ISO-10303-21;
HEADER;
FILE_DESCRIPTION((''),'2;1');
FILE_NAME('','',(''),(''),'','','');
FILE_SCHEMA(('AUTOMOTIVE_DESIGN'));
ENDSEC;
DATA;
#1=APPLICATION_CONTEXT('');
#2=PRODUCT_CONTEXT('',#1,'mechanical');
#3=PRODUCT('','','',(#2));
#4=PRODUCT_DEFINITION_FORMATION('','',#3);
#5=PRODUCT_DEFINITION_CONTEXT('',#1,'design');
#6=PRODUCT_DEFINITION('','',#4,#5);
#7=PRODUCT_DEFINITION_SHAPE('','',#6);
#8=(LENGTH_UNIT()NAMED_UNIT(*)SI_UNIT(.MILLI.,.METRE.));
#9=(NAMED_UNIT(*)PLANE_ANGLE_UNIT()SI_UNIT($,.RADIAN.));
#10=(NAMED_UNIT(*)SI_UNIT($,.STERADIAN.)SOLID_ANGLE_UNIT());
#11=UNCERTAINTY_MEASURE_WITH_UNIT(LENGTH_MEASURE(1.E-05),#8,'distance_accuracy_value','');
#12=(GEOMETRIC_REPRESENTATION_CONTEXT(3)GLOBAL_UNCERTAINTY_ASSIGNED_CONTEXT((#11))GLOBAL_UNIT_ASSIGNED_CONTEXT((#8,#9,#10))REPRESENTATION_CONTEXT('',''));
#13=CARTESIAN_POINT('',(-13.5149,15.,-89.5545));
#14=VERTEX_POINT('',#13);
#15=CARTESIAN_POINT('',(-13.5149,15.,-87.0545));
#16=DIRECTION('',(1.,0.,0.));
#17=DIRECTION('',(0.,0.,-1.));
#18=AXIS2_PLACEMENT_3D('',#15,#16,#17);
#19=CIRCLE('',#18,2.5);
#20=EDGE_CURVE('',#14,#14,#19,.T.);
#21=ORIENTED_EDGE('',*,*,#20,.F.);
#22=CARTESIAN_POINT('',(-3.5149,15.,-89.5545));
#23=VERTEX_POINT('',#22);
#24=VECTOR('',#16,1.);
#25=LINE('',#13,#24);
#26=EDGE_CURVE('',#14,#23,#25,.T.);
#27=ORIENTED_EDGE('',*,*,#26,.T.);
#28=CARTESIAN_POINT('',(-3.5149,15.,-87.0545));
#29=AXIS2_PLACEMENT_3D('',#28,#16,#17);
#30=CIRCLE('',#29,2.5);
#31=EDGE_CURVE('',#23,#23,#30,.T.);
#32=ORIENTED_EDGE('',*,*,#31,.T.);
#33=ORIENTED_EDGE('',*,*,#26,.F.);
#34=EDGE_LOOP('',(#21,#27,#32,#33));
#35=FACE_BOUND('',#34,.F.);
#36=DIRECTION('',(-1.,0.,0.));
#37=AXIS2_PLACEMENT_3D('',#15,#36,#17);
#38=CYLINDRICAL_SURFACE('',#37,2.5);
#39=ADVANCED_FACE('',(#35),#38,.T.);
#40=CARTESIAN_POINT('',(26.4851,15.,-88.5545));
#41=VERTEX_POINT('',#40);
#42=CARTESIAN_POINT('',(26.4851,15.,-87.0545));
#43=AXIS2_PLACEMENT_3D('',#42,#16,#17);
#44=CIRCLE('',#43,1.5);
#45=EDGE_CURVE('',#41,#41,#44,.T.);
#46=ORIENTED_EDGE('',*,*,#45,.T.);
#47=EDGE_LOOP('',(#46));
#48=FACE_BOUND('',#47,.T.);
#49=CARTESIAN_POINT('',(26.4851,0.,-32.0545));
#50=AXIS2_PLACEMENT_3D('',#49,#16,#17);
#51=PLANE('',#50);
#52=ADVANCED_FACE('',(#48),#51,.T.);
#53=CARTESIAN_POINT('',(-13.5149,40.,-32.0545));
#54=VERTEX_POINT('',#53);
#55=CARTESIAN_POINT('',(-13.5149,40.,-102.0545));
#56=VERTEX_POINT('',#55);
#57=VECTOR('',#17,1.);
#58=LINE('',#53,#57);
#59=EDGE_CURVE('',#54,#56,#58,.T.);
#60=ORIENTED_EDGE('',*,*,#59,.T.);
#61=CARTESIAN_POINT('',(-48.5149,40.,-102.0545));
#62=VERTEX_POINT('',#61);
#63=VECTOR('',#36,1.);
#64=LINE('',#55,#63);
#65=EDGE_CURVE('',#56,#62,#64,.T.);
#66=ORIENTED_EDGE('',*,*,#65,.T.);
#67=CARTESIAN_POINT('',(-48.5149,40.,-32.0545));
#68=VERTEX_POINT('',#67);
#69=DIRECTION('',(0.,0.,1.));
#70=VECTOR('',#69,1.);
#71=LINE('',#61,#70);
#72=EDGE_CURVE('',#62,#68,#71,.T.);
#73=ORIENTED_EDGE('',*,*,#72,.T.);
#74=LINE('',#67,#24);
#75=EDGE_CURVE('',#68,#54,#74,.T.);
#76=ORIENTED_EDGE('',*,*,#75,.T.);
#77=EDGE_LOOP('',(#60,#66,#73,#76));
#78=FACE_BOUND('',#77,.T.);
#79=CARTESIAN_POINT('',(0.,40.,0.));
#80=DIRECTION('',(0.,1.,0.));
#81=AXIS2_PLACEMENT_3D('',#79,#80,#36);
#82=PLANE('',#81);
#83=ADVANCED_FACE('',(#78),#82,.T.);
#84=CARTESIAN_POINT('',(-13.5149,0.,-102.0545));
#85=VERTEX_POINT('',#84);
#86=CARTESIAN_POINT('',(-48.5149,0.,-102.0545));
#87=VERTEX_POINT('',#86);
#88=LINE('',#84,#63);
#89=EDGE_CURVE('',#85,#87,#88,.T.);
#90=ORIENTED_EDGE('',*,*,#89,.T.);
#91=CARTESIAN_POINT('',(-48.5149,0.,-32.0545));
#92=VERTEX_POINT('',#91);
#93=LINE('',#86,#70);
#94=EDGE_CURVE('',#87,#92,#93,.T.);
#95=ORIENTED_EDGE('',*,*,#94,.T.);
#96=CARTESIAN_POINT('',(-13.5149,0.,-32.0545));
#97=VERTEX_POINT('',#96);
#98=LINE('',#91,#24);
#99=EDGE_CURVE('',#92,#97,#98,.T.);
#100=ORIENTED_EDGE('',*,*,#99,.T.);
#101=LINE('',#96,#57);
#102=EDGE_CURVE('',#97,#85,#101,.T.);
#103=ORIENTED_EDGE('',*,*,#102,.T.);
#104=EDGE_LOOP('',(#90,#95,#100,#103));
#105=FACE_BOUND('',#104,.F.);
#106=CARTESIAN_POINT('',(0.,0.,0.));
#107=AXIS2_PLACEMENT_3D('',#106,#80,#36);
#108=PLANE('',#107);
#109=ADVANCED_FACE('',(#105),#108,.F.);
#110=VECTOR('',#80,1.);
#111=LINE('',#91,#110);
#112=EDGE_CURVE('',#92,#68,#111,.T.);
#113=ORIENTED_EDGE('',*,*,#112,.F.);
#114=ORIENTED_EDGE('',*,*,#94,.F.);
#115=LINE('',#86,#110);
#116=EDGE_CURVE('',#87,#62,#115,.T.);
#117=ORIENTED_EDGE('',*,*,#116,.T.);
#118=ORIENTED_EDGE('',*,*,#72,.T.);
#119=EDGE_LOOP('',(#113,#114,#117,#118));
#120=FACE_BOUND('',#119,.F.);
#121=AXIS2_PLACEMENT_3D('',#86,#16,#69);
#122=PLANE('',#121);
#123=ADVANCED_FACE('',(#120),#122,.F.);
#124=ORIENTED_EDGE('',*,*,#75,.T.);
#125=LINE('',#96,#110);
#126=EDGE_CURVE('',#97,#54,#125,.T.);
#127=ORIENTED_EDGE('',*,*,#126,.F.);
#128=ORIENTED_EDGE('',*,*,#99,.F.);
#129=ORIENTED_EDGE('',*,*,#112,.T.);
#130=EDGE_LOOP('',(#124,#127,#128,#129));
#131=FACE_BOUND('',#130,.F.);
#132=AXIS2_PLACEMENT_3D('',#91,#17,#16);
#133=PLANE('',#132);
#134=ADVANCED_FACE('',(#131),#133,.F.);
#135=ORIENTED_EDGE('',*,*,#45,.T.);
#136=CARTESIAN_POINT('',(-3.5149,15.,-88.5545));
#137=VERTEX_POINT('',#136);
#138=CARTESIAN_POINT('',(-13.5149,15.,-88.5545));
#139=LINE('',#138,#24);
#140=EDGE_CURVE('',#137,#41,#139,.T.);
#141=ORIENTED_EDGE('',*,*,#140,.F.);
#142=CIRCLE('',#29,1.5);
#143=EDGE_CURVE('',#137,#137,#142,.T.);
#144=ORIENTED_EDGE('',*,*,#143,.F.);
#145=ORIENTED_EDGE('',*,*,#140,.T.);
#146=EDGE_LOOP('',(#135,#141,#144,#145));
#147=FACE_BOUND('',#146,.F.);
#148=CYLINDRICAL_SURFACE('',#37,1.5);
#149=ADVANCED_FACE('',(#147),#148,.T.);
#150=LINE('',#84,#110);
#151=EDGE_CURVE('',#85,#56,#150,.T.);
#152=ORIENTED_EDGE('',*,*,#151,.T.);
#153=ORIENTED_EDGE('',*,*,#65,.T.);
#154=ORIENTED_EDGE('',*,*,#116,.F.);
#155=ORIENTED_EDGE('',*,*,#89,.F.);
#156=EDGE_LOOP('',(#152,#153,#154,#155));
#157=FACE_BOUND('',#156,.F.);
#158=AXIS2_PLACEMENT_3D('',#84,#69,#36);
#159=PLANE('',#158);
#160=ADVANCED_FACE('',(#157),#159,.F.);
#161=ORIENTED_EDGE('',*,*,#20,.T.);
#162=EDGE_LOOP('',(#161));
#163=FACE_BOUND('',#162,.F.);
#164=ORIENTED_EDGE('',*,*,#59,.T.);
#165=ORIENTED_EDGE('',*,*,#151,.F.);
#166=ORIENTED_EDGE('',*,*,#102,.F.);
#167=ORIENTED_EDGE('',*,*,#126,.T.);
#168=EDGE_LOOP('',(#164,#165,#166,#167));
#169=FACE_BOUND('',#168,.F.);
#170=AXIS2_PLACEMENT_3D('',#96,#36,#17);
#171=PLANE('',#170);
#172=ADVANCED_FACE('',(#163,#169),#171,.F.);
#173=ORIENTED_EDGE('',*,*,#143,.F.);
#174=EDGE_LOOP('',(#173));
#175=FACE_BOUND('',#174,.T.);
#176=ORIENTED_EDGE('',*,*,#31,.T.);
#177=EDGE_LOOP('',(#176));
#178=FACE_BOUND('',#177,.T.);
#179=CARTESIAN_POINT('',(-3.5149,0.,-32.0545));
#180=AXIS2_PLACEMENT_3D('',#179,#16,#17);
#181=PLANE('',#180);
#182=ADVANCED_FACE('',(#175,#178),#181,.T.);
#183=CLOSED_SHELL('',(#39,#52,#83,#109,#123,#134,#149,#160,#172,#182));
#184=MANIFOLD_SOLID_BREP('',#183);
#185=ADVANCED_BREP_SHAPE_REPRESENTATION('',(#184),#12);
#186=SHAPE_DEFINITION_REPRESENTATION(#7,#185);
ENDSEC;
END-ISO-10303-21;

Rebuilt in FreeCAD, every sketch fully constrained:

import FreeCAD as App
import Part
import Sketcher

V = App.Vector
Q = App.Units.Quantity


def add_polygon(sketch, points):
    """Adds a closed chain of lines whose ends are joined by coincident constraints."""
    first, n = sketch.GeometryCount, len(points)
    for a, b in zip(points, points[1:] + points[:1]):
        sketch.addGeometry(Part.LineSegment(App.Vector(*a, 0), App.Vector(*b, 0)), False)
    for i in range(n):
        sketch.addConstraint(Sketcher.Constraint("Coincident", first + i, 2, first + (i + 1) % n, 1))

doc = App.newDocument("Part")
body = doc.addObject("PartDesign::Body", "Body")

# Sketch on XZ plane
sketch1 = body.newObject("Sketcher::SketchObject", "Sketch")
sketch1.AttachmentSupport = (doc.getObject("XZ_Plane"), [""])
sketch1.MapMode = "FlatFace"
add_polygon(sketch1, [(-48.5149, -102.0545), (-48.5149, -32.0545), (-13.5149, -32.0545), (-13.5149, -102.0545)])  # lines 0-3
sketch1.addConstraint([
    Sketcher.Constraint("Vertical", 0),
    Sketcher.Constraint("Horizontal", 1),
    Sketcher.Constraint("Vertical", 2),
    Sketcher.Constraint("Horizontal", 3),
    Sketcher.Constraint("DistanceX", 1, 1, 1, 2, Q("35 mm")),
    Sketcher.Constraint("DistanceY", 0, 1, 0, 2, Q("70 mm")),
    Sketcher.Constraint("DistanceX", 0, 2, -1, 1, Q("48.515 mm")),
    Sketcher.Constraint("DistanceY", 0, 2, -1, 1, Q("32.0545 mm")),
])
pad1 = body.newObject("PartDesign::Pad", "Pad")
pad1.Profile = sketch1
pad1.Length = 40
pad1.Reversed = True

# Sketch on YZ plane
sketch2 = body.newObject("Sketcher::SketchObject", "Sketch001")
sketch2.AttachmentSupport = (doc.getObject("YZ_Plane"), [""])
sketch2.MapMode = "FlatFace"
sketch2.AttachmentOffset = App.Placement(V(0, 0, -13.5149), App.Rotation())
sketch2.addGeometry(Part.Circle(V(15, -87.0545, 0), V(0, 0, 1), 1.5), False)
sketch2.addConstraint([
    Sketcher.Constraint("Diameter", 0, Q("3 mm")),
    Sketcher.Constraint("DistanceX", -1, 1, 0, 3, Q("15 mm")),
    Sketcher.Constraint("DistanceY", 0, 3, -1, 1, Q("87.0545 mm")),
])
pad2 = body.newObject("PartDesign::Pad", "Pad001")
pad2.Profile = sketch2
pad2.Length = 40

# Sketch on YZ plane
sketch3 = body.newObject("Sketcher::SketchObject", "Sketch002")
sketch3.AttachmentSupport = (doc.getObject("YZ_Plane"), [""])
sketch3.MapMode = "FlatFace"
sketch3.AttachmentOffset = App.Placement(V(0, 0, -13.5149), App.Rotation())
sketch3.addGeometry([
    Part.Circle(V(15, -87.0545, 0), V(0, 0, 1), 2.5),
    Part.Circle(V(15, -87.0545, 0), V(0, 0, 1), 1.5),
], False)
sketch3.addConstraint([
    Sketcher.Constraint("Coincident", 1, 3, 0, 3),
    Sketcher.Constraint("Diameter", 0, Q("5 mm")),
    Sketcher.Constraint("Diameter", 1, Q("3 mm")),
    Sketcher.Constraint("DistanceX", -1, 1, 0, 3, Q("15 mm")),
    Sketcher.Constraint("DistanceY", 0, 3, -1, 1, Q("87.0545 mm")),
])
pad3 = body.newObject("PartDesign::Pad", "Pad002")
pad3.Profile = sketch3
pad3.Length = 10

doc.recompute()
